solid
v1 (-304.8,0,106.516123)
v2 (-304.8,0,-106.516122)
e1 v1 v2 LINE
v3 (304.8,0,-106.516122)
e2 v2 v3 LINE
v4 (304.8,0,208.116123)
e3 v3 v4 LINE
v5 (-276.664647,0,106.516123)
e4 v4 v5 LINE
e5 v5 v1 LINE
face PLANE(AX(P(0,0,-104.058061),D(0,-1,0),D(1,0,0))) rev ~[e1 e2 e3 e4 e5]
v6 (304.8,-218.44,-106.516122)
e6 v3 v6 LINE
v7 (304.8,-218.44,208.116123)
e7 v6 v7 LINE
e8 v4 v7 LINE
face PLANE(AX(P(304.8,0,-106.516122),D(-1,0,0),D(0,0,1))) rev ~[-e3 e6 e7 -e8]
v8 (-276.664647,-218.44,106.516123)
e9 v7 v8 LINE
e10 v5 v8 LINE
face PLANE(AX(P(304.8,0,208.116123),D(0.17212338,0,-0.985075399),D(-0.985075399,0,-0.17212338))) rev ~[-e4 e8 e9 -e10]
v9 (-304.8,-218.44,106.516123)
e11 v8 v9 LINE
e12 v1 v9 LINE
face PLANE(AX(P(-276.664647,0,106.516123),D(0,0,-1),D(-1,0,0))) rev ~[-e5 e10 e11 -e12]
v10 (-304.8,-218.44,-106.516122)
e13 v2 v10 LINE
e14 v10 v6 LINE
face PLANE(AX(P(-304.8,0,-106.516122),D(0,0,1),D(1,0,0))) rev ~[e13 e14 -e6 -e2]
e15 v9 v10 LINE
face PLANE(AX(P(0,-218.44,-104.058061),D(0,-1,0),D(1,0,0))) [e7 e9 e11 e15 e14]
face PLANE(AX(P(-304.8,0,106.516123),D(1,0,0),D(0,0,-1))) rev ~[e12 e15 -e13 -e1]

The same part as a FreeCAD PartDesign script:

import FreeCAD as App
import Part
import Sketcher

V = App.Vector
Q = App.Units.Quantity

doc = App.newDocument("Part")
body = doc.addObject("PartDesign::Body", "Body")

# Sketch on XZ plane
sketch1 = doc.addObject("Sketcher::SketchObject", "Sketch")
body.addObject(sketch1)
sketch1.AttachmentSupport = (doc.XZ_Plane, [""])
sketch1.MapMode = "FlatFace"
sketch1.addGeometry(Part.LineSegment(V(-305, -107, 0), V(305, -107, 0)), False)
sketch1.addGeometry(Part.LineSegment(V(305, -107, 0), V(305, 208, 0)), False)
sketch1.addGeometry(Part.LineSegment(V(305, 208, 0), V(-277, 107, 0)), False)
sketch1.addGeometry(Part.LineSegment(V(-277, 107, 0), V(-305, 107, 0)), False)
sketch1.addGeometry(Part.LineSegment(V(-305, 107, 0), V(-305, -107, 0)), False)
sketch1.addConstraint(Sketcher.Constraint("Coincident", 0, 2, 1, 1))
sketch1.addConstraint(Sketcher.Constraint("Coincident", 1, 2, 2, 1))
sketch1.addConstraint(Sketcher.Constraint("Coincident", 2, 2, 3, 1))
sketch1.addConstraint(Sketcher.Constraint("Coincident", 3, 2, 4, 1))
sketch1.addConstraint(Sketcher.Constraint("Coincident", 4, 2, 0, 1))
sketch1.addConstraint(Sketcher.Constraint("Horizontal", 0))
sketch1.addConstraint(Sketcher.Constraint("Vertical", 1))
sketch1.addConstraint(Sketcher.Constraint("Horizontal", 3))
sketch1.addConstraint(Sketcher.Constraint("Vertical", 4))
sketch1.addConstraint(Sketcher.Constraint("Symmetric", 0, 2, 3, 2, -1, 1))
sketch1.addConstraint(Sketcher.Constraint("DistanceX", 0, 1, 0, 2, Q("24 in")))
sketch1.addConstraint(Sketcher.Constraint("DistanceY", 2, 2, 1, 2, Q("4 in")))
sketch1.addConstraint(Sketcher.Constraint("DistanceX", 3, 2, 3, 1, 28.135353))
sketch1.addConstraint(Sketcher.Constraint("DistanceY", 1, 1, 1, 2, 314.632245))
pad1 = doc.addObject("PartDesign::Pad", "Pad")
body.addObject(pad1)
pad1.Profile = sketch1
pad1.Length = Q("8.6 in")

doc.recompute()
